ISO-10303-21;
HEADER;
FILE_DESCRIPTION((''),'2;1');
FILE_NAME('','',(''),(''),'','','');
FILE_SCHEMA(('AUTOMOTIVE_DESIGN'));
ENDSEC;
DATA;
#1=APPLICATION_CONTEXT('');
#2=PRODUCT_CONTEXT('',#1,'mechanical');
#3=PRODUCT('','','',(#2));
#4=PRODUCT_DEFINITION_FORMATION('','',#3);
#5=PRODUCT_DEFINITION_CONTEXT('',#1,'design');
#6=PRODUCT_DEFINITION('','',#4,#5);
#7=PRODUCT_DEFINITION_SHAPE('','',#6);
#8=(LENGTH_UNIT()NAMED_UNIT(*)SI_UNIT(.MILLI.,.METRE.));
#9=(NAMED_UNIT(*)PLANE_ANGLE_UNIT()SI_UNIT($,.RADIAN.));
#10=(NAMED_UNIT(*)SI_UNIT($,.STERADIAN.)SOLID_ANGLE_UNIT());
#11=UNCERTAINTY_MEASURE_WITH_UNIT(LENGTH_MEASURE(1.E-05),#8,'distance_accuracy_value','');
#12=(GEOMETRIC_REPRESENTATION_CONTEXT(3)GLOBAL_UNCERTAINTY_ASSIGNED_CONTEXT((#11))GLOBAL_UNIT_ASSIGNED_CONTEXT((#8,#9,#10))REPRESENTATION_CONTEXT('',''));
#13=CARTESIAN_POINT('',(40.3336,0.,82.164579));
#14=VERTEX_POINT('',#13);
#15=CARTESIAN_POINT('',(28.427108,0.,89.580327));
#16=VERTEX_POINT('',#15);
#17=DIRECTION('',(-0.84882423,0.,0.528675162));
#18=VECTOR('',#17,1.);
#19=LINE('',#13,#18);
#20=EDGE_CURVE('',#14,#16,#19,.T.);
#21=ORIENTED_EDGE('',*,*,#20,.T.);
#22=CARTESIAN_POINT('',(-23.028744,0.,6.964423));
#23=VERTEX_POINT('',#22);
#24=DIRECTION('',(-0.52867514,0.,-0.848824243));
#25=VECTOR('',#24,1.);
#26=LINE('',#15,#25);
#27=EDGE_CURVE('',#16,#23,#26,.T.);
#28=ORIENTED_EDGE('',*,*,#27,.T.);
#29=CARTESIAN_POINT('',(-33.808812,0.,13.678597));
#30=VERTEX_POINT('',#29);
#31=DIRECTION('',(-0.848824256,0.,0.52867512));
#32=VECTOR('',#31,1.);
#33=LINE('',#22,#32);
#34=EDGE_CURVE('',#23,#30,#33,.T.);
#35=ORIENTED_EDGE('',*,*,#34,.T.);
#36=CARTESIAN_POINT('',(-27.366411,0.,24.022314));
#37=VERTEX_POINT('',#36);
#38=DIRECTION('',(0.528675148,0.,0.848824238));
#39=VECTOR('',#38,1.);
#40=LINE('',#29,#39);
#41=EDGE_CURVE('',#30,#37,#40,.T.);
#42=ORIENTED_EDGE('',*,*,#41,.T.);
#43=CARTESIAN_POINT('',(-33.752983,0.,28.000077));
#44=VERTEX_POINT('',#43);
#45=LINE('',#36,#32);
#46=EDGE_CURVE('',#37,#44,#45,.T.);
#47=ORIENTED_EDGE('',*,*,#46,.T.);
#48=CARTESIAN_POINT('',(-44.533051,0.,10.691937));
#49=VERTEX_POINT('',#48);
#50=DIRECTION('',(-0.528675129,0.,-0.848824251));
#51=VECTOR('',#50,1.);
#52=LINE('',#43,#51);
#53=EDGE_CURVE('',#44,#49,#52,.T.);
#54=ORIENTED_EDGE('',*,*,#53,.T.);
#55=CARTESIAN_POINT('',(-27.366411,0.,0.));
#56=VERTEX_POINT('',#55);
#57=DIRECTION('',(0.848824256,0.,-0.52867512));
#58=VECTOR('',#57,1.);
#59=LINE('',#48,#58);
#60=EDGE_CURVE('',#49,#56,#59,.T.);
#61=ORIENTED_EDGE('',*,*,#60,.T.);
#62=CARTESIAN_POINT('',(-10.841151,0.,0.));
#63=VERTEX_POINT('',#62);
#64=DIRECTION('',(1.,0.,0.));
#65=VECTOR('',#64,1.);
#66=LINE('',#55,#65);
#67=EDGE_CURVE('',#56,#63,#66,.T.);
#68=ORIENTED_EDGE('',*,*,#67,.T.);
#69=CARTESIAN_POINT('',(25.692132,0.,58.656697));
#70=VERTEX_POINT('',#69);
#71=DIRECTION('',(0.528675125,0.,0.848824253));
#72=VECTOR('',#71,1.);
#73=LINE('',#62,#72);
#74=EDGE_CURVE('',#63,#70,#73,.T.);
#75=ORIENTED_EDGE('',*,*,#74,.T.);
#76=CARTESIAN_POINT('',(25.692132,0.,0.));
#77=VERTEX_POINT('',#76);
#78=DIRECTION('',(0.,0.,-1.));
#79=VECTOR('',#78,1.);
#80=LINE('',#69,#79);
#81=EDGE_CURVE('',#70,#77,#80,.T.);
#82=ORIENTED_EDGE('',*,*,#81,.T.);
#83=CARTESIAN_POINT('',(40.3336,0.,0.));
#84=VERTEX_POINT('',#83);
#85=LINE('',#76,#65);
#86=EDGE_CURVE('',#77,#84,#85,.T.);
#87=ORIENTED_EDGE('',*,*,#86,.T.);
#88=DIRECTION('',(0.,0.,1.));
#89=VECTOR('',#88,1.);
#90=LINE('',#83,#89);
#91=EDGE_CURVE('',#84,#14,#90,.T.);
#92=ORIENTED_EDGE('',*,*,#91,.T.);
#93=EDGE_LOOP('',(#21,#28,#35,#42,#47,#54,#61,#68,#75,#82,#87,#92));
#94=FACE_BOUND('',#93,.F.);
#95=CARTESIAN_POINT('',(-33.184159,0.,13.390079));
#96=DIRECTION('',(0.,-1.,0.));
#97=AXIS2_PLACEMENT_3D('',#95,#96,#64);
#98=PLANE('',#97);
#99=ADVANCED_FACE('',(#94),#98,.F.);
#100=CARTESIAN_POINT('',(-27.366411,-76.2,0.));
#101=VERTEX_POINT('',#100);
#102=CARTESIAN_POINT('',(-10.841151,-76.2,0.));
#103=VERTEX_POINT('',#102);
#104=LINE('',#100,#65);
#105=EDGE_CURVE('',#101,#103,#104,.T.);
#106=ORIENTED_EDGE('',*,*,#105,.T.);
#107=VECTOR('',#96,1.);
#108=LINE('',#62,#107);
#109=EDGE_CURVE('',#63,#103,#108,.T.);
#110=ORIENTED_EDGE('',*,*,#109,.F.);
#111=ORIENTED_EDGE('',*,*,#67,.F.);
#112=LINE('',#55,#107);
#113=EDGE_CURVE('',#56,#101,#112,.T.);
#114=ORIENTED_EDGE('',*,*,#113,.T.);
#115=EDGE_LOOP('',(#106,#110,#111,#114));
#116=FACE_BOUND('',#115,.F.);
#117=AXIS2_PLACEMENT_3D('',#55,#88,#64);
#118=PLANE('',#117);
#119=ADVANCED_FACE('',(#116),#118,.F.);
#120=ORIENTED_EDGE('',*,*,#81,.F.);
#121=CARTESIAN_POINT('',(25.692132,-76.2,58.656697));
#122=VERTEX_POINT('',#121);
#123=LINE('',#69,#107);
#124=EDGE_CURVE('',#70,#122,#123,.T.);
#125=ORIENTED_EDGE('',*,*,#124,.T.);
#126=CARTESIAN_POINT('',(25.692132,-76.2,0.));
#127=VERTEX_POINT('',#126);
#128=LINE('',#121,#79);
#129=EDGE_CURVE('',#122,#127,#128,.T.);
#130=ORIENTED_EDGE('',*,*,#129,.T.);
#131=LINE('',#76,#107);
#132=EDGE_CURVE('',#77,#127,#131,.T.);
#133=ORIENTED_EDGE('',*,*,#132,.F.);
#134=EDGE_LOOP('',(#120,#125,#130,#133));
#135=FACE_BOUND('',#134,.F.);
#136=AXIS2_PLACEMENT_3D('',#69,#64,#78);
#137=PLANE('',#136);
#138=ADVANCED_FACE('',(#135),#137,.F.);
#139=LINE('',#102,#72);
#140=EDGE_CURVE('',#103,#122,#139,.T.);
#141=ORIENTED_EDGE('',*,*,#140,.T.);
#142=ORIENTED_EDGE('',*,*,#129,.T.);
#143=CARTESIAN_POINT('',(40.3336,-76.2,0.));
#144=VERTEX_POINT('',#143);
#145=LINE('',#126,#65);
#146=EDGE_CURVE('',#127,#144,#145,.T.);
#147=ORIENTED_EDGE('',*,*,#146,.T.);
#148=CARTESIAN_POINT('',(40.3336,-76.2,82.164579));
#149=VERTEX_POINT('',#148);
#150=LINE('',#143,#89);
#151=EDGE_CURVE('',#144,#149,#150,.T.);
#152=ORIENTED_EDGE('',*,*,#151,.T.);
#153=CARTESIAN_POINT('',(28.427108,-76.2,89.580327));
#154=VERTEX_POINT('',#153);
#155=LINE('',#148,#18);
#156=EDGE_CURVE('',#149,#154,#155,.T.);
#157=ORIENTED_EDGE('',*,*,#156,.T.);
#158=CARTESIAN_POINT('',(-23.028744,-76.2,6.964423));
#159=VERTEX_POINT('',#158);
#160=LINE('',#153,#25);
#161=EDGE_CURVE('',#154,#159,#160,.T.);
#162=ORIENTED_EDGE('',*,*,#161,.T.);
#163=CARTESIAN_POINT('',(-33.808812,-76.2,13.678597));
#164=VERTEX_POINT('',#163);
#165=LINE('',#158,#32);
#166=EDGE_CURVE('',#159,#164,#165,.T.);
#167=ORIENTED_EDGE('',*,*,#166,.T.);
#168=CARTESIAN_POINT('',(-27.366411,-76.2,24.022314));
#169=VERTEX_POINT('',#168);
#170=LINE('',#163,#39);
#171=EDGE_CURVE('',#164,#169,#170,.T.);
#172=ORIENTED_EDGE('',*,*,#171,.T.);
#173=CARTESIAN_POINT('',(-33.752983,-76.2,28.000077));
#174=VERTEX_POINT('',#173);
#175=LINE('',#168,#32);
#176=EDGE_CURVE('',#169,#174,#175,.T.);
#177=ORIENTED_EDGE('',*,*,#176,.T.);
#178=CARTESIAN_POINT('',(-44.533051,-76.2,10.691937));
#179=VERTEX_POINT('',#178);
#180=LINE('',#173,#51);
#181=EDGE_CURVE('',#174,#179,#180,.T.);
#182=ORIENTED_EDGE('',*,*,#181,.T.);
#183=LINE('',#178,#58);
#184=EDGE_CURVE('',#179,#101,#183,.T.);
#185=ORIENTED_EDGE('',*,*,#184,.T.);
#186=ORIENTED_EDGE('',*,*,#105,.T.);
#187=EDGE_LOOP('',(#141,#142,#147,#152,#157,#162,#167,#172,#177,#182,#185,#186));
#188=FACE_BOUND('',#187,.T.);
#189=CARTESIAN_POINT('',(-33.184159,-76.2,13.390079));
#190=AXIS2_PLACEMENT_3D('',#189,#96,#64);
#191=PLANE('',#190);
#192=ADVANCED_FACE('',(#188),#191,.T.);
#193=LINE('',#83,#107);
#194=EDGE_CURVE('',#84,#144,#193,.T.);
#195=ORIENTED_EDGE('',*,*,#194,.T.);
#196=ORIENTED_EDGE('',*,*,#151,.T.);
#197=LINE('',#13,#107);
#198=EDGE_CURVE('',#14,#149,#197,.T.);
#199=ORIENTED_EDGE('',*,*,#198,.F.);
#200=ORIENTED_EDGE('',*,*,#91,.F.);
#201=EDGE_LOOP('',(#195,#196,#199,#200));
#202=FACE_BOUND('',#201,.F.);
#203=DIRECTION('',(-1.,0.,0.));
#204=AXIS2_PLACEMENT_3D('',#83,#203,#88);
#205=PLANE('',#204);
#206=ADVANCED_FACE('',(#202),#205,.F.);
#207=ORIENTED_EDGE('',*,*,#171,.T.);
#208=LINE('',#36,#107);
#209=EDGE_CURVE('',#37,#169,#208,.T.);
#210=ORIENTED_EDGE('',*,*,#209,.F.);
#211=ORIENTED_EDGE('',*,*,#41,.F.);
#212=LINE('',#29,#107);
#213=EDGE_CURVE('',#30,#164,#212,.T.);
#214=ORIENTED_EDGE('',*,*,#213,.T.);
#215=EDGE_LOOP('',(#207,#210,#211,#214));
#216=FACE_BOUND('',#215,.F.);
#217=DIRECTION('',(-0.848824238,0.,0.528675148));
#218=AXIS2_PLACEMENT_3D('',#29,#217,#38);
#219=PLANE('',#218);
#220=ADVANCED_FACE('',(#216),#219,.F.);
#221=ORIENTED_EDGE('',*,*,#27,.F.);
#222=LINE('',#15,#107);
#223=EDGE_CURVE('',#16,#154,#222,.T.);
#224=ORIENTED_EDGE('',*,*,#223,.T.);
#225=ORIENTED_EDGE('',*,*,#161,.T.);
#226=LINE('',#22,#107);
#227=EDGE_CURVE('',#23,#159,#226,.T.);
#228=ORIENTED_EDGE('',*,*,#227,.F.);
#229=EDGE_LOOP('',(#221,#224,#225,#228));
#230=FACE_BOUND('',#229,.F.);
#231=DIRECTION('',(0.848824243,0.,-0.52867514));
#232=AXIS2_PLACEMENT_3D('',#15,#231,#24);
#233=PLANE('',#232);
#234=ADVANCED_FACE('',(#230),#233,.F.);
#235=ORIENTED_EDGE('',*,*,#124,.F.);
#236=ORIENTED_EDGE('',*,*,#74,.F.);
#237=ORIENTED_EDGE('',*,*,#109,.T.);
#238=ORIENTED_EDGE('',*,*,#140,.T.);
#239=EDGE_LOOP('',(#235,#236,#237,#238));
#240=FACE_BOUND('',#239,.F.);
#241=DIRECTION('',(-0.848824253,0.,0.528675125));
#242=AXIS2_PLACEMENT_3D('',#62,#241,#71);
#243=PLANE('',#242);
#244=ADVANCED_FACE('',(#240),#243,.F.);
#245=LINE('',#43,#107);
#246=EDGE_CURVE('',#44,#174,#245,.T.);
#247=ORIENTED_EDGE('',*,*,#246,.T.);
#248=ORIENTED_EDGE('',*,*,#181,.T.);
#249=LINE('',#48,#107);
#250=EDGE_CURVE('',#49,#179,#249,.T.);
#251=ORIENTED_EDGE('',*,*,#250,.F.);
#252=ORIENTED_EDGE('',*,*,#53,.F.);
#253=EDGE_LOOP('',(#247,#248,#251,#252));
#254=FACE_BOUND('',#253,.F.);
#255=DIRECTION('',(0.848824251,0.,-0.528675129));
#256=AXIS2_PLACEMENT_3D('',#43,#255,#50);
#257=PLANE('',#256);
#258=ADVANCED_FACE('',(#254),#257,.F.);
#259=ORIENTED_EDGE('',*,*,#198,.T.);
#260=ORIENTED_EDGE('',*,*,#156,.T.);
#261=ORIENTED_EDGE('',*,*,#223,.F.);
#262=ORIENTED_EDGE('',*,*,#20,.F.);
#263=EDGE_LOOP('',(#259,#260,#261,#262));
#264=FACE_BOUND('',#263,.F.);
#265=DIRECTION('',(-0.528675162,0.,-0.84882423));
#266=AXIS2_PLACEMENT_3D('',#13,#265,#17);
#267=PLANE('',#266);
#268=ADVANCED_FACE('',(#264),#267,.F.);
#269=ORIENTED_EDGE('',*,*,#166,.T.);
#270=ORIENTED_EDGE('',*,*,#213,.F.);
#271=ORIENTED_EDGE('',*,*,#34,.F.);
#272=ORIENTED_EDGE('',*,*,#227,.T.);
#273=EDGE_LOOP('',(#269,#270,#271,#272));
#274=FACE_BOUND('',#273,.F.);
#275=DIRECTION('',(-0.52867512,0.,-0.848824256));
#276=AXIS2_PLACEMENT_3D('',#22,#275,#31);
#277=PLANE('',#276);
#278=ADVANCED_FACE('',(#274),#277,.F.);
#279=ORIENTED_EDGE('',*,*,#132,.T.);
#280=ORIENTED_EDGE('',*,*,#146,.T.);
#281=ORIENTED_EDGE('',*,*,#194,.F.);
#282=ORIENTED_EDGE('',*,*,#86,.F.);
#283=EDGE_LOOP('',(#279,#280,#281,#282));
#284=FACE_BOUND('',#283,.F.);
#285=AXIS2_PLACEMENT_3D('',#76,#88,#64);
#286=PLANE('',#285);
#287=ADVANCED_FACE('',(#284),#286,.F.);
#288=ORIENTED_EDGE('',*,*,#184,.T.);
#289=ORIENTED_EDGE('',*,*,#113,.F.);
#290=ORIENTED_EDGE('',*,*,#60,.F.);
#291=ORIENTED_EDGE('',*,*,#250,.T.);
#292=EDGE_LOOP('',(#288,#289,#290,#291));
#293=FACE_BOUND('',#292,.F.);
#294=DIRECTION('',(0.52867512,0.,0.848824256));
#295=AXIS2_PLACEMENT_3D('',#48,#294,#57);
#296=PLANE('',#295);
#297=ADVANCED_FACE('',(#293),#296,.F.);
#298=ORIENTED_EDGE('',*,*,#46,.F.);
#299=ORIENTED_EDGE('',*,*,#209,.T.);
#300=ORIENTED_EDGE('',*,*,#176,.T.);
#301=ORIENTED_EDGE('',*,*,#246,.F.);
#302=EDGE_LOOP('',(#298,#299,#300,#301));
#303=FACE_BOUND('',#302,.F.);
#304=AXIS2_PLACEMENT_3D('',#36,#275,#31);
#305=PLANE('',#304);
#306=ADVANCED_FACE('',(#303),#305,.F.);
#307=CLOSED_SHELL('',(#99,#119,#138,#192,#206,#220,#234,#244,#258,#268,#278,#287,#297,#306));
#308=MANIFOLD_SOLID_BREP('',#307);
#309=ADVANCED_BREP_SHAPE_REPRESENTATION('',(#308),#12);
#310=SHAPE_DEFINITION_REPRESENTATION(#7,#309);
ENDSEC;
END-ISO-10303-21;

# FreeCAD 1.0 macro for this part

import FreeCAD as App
import Part
import Sketcher

V = App.Vector
Q = App.Units.Quantity


def add_polygon(sketch, points):
    """Adds a closed chain of lines whose ends are joined by coincident constraints."""
    first, n = sketch.GeometryCount, len(points)
    for a, b in zip(points, points[1:] + points[:1]):
        sketch.addGeometry(Part.LineSegment(App.Vector(*a, 0), App.Vector(*b, 0)), False)
    for i in range(n):
        sketch.addConstraint(Sketcher.Constraint("Coincident", first + i, 2, first + (i + 1) % n, 1))

doc = App.newDocument("Part")
body = doc.addObject("PartDesign::Body", "Body")

sketch1 = body.newObject("Sketcher::SketchObject", "Sketch")
sketch1.AttachmentSupport = (doc.getObject("XZ_Plane"), [""])
sketch1.MapMode = "FlatFace"
add_polygon(sketch1, [(-44.533051, 10.691937), (-27.366411, 0), (-10.841151, 0), (25.692132, 58.656697), (25.692132, 0), (40.3336, 0), (40.3336, 82.164579), (28.427108, 89.580327), (-23.028744, 6.964423), (-33.808812, 13.678597), (-27.366411, 24.022314), (-33.752983, 28.000077)])
sketch1.addConstraint([
    Sketcher.Constraint("Horizontal", 1),
    Sketcher.Constraint("Vertical", 3),
    Sketcher.Constraint("Horizontal", 4),
    Sketcher.Constraint("Vertical", 5),
    Sketcher.Constraint("PointOnObject", 0, 2, -1),
    Sketcher.Constraint("PointOnObject", 3, 2, -1),
    Sketcher.Constraint("Perpendicular", 0, 2),
    Sketcher.Constraint("Perpendicular", 2, 6),
    Sketcher.Constraint("Perpendicular", 6, 7),
    Sketcher.Constraint("Perpendicular", 7, 8),
    Sketcher.Constraint("Perpendicular", 8, 9),
    Sketcher.Constraint("Perpendicular", 9, 10),
    Sketcher.Constraint("Perpendicular", 10, 11),
    Sketcher.Constraint("Vertical", 0, 2, 9, 2),
    Sketcher.Constraint("Distance", 8, Q("0.5 in")),
    Sketcher.Constraint("DistanceX", 1, 1, 1, 2, Q("16.52526 mm")),
    Sketcher.Constraint("DistanceY", 5, 1, 5, 2, Q("82.164579 mm")),
    Sketcher.Constraint("DistanceX", -1, 1, 4, 2, Q("40.3336 mm")),
    Sketcher.Constraint("DistanceX", 8, 2, 0, 2, Q("6.442401 mm")),
    Sketcher.Constraint("DistanceY", 8, 2, 2, 2, Q("44.9781 mm")),
    Sketcher.Constraint("Distance", 0, Q("20.224022 mm")),
    Sketcher.Constraint("Distance", 6, Q("14.027041 mm")),
    Sketcher.Constraint("Distance", 7, Q("97.329812 mm")),
    Sketcher.Constraint("Distance", 10, Q("7.524022 mm")),
])
pad1 = body.newObject("PartDesign::Pad", "Pad")
pad1.Profile = sketch1
pad1.Length = Q("3 in")

doc.recompute()
